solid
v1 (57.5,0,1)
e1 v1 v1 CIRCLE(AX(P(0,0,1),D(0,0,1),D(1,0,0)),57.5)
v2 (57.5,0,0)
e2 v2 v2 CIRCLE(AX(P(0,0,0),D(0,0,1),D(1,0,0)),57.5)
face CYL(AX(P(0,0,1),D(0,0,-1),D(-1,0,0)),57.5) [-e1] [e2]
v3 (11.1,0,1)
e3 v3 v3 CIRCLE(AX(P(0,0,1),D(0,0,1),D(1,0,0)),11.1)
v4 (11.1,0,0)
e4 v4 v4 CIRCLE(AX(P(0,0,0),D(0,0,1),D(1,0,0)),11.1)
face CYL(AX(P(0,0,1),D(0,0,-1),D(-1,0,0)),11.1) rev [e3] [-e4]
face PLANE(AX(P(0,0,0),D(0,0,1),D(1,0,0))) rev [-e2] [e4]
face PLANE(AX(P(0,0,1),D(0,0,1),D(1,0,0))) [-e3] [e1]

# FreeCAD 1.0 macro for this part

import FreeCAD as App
import Part
import Sketcher

V = App.Vector

doc = App.newDocument("Part")
body = doc.addObject("PartDesign::Body", "Body")

sketch1 = body.newObject("Sketcher::SketchObject", "Sketch")
sketch1.AttachmentSupport = (doc.getObject("XY_Plane"), [""])
sketch1.MapMode = "FlatFace"
sketch1.addGeometry(Part.Circle(V(0, 0, 0), V(0, 0, 1), 58), False)
sketch1.addGeometry(Part.Circle(V(0, 0, 0), V(0, 0, 1), 11), False)
sketch1.addConstraint(Sketcher.Constraint("Coincident", 0, 3, -1, 1))
sketch1.addConstraint(Sketcher.Constraint("Coincident", 1, 3, -1, 1))
sketch1.addConstraint(Sketcher.Constraint("Diameter", 0, 115.0))
sketch1.addConstraint(Sketcher.Constraint("Diameter", 1, 22.2))
pad1 = body.newObject("PartDesign::Pad", "Pad")
pad1.Profile = sketch1
pad1.Length = 1

doc.recompute()
